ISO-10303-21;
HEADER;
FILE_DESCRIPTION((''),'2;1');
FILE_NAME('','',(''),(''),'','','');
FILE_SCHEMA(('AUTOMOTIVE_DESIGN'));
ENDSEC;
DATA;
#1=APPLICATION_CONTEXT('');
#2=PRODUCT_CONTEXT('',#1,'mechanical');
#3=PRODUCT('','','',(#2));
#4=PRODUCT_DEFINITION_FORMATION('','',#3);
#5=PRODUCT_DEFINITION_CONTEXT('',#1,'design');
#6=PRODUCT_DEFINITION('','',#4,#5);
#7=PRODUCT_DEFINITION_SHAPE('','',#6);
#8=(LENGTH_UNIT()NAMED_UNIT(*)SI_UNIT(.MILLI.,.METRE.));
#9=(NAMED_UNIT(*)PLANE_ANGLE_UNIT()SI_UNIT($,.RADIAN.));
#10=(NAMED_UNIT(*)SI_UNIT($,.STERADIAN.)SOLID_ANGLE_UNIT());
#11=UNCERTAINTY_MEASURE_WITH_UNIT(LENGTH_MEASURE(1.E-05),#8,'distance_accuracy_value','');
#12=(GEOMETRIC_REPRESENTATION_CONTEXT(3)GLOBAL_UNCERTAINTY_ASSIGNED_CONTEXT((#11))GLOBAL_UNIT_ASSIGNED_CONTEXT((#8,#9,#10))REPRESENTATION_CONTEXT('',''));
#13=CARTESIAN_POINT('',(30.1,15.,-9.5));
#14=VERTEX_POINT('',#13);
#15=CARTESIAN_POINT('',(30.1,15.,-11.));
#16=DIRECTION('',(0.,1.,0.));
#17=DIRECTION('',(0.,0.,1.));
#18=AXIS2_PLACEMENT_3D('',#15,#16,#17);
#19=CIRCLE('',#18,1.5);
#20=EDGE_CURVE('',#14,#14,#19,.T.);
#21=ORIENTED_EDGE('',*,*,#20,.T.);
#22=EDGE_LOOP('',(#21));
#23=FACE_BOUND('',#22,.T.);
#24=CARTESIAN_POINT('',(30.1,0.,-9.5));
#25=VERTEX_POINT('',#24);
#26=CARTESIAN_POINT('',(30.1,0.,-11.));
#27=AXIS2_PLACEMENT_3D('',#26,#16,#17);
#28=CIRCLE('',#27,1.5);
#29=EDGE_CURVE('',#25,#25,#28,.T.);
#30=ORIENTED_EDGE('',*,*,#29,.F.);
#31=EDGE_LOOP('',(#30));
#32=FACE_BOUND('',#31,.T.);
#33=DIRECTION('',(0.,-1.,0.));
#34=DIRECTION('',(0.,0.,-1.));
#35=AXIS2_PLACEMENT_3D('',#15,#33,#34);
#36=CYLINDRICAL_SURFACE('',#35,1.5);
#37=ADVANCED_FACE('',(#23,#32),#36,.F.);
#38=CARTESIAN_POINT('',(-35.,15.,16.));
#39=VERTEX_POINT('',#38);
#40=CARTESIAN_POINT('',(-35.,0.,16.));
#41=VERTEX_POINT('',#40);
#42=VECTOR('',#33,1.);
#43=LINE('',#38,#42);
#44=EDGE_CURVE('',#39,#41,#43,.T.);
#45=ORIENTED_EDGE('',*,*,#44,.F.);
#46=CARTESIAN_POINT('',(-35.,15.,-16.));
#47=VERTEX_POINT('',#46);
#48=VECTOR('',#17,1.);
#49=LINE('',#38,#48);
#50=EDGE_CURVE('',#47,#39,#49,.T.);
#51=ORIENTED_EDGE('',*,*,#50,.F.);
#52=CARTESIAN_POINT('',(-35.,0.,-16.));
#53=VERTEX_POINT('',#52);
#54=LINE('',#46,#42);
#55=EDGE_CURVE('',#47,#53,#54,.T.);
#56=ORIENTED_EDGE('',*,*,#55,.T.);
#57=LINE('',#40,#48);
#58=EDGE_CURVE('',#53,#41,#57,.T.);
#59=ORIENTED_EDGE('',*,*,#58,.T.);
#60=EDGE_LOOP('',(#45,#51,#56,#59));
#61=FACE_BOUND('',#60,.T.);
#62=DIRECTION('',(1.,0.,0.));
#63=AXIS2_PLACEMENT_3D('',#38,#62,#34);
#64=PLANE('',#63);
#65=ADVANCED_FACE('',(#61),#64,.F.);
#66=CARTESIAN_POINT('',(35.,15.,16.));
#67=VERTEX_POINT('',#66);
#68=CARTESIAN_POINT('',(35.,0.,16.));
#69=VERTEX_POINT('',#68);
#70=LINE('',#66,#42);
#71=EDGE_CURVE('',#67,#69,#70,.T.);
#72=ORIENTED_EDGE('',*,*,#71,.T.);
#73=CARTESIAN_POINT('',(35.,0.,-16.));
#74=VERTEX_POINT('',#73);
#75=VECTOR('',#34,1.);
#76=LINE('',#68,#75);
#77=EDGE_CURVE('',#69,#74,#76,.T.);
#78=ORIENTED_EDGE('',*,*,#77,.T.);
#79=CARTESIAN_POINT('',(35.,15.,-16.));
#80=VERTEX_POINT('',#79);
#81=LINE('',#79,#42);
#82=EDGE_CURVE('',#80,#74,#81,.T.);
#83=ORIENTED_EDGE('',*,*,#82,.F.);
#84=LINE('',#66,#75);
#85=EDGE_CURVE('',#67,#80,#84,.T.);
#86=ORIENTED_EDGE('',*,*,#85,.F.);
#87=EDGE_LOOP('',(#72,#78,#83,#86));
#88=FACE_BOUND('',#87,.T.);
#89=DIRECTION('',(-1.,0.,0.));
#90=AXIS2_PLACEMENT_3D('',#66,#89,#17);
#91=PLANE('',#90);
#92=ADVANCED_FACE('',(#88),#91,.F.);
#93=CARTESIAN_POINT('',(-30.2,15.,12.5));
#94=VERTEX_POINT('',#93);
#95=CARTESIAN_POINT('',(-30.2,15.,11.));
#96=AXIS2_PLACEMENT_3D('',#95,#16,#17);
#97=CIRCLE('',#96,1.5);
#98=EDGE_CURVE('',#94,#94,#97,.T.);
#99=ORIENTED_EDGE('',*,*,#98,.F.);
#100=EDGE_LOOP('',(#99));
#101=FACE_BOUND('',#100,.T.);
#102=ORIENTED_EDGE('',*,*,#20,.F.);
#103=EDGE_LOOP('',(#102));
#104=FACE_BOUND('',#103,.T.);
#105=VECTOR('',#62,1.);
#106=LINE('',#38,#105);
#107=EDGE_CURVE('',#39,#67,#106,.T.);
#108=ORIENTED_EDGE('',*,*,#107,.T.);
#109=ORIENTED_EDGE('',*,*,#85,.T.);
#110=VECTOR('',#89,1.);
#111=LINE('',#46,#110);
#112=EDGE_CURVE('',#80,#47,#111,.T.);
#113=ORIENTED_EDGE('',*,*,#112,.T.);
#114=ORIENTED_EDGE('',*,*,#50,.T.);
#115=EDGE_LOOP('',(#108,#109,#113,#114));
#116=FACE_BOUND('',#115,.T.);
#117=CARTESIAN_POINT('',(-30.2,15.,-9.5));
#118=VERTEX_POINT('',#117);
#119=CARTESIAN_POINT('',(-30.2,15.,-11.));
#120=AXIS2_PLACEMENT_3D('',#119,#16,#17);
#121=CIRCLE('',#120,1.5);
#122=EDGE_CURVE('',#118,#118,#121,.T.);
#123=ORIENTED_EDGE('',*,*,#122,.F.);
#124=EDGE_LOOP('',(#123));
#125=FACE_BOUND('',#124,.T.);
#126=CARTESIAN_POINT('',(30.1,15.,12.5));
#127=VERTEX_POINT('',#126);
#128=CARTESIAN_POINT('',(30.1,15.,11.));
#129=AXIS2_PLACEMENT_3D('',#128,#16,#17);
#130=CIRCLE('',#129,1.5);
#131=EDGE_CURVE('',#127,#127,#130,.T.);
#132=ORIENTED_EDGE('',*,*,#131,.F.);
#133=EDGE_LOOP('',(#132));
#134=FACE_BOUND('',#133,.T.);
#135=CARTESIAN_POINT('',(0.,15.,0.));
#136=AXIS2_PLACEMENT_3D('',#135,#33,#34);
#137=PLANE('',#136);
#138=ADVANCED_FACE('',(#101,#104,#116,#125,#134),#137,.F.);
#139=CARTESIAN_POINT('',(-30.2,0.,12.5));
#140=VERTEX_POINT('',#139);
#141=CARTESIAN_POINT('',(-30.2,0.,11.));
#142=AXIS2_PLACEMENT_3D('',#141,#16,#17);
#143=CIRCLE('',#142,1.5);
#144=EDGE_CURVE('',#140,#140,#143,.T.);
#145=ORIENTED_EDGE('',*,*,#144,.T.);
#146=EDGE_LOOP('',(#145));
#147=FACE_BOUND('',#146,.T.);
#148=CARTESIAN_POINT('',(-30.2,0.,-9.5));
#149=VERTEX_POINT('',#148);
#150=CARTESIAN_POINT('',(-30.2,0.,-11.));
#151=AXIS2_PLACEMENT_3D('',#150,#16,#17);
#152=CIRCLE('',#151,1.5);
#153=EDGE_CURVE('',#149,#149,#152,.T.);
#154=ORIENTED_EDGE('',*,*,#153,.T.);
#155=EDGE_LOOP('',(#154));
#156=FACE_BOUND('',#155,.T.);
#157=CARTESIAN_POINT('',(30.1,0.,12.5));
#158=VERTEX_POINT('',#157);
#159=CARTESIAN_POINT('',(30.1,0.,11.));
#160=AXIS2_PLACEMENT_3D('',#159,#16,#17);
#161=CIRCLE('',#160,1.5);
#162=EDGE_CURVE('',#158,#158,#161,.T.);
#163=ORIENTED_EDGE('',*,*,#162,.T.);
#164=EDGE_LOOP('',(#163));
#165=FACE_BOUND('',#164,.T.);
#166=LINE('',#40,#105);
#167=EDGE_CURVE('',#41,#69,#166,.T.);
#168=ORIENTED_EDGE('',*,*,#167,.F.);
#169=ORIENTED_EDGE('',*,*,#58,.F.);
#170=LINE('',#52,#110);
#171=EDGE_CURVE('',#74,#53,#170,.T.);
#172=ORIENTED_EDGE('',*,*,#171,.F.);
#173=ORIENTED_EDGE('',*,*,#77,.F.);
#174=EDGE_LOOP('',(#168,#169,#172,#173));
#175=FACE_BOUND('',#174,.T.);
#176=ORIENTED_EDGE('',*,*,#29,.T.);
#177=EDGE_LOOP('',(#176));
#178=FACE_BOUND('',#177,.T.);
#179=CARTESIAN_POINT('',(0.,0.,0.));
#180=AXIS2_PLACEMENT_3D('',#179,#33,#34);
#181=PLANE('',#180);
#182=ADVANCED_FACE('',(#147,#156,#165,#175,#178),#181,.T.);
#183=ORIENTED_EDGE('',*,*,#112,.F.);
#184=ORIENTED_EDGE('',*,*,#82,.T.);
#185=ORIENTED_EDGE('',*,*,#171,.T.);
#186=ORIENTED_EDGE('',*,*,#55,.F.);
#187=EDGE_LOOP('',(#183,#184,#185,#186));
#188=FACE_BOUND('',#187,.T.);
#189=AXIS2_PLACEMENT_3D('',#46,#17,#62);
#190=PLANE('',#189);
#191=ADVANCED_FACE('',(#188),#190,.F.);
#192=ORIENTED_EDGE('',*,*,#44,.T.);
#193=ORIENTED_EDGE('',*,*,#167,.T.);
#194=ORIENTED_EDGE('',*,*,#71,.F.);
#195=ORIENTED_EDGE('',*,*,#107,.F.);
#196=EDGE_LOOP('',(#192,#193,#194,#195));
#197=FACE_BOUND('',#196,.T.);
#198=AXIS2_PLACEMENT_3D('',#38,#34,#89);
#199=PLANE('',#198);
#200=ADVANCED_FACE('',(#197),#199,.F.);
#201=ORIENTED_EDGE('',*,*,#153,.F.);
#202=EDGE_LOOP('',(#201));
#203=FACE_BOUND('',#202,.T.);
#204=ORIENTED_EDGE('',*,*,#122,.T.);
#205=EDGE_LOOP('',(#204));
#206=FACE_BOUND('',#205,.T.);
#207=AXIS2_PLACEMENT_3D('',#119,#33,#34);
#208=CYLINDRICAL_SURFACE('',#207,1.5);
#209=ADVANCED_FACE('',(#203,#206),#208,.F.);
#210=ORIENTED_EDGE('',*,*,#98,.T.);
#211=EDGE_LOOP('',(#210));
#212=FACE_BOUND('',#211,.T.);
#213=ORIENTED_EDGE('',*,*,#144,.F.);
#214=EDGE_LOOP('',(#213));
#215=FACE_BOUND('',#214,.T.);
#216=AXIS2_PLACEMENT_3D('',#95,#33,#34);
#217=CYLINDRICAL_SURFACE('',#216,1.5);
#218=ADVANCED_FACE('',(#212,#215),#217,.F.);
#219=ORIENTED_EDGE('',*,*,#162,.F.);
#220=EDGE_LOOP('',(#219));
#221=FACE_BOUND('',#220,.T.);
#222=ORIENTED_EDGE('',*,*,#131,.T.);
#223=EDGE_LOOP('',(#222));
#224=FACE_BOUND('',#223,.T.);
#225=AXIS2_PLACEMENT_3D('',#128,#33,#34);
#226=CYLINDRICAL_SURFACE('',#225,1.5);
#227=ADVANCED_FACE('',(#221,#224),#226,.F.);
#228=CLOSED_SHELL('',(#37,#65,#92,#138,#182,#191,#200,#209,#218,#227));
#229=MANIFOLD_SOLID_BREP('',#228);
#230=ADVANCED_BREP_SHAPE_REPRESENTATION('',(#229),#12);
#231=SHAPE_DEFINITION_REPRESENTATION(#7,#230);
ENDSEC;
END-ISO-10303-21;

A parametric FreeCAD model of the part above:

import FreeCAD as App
import Part
import Sketcher

doc = App.newDocument("Part")
body = doc.addObject("PartDesign::Body", "Body")

# Sketch on XZ plane
sketch1 = doc.addObject("Sketcher::SketchObject", "Sketch")
body.addObject(sketch1)
sketch1.AttachmentSupport = (doc.XZ_Plane, [""])
sketch1.MapMode = "FlatFace"
sketch1.addGeometry([
    Part.LineSegment(App.Vector(-35, -16, 0), App.Vector(-35, 16, 0)),  # 0
    Part.LineSegment(App.Vector(-35, 16, 0), App.Vector(35, 16, 0)),  # 1
    Part.LineSegment(App.Vector(35, 16, 0), App.Vector(35, -16, 0)),  # 2
    Part.LineSegment(App.Vector(35, -16, 0), App.Vector(-35, -16, 0)),  # 3
    Part.Circle(App.Vector(-30.2, 11, 0), App.Vector(0, 0, 1), 1.5),  # 4
    Part.Circle(App.Vector(30.1, 11, 0), App.Vector(0, 0, 1), 1.5),  # 5
    Part.Circle(App.Vector(-30.2, -11, 0), App.Vector(0, 0, 1), 1.5),  # 6
    Part.Circle(App.Vector(30.1, -11, 0), App.Vector(0, 0, 1), 1.5),  # 7
], False)
sketch1.addConstraint([
    Sketcher.Constraint("Coincident", 0, 2, 1, 1),
    Sketcher.Constraint("Coincident", 1, 2, 2, 1),
    Sketcher.Constraint("Coincident", 2, 2, 3, 1),
    Sketcher.Constraint("Coincident", 3, 2, 0, 1),
    Sketcher.Constraint("Vertical", 0),
    Sketcher.Constraint("Horizontal", 1),
    Sketcher.Constraint("Vertical", 2),
    Sketcher.Constraint("Horizontal", 3),
    Sketcher.Constraint("Equal", 4, 5),
    Sketcher.Constraint("Equal", 5, 6),
    Sketcher.Constraint("Equal", 6, 7),
    Sketcher.Constraint("Symmetric", 0, 2, 2, 2, -1, 1),
    Sketcher.Constraint("Symmetric", 4, 3, 6, 3, -1),
    Sketcher.Constraint("Symmetric", 5, 3, 7, 3, -1),
    Sketcher.Constraint("Horizontal", 4, 3, 5, 3),
    Sketcher.Constraint("Diameter", 4, 3.0),
    Sketcher.Constraint("DistanceX", 1, 1, 1, 2, 70.0),
    Sketcher.Constraint("DistanceY", 0, 1, 0, 2, 32.0),
    Sketcher.Constraint("DistanceY", -1, 1, 4, 3, 11.0),
    Sketcher.Constraint("DistanceX", 4, 3, -1, 1, 30.2),
    Sketcher.Constraint("DistanceX", -1, 1, 5, 3, 30.1),
])
pad1 = doc.addObject("PartDesign::Pad", "Pad")
body.addObject(pad1)
pad1.Profile = sketch1
pad1.Length = 15
pad1.Reversed = True

doc.recompute()
